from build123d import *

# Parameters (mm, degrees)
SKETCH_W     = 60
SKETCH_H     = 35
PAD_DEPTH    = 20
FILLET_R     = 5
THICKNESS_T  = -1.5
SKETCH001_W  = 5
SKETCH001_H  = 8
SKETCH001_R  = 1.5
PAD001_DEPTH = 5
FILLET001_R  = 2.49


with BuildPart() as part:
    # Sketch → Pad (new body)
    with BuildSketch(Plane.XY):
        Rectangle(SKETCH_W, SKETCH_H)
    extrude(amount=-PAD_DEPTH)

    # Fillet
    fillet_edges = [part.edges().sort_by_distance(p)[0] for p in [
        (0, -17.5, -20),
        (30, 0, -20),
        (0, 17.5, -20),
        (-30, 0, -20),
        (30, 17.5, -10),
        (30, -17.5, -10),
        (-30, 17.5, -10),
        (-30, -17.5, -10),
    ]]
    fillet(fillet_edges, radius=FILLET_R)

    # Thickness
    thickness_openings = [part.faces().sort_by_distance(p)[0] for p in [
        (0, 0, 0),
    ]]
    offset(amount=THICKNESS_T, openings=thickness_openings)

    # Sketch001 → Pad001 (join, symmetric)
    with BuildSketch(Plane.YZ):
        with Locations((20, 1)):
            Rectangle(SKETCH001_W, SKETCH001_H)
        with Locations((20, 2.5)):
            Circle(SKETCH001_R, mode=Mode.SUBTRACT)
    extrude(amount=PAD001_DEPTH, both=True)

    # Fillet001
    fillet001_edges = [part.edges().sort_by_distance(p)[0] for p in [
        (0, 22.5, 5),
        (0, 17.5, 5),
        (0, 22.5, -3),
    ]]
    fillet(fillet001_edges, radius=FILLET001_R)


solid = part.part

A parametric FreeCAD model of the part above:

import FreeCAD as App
import Part
import Sketcher

V = App.Vector
Q = App.Units.Quantity


def edges_at(feature, points):
    """Names of the edges that pass closest to the given points."""
    edges = feature.Shape.Edges
    near = lambda p: min(range(len(edges)), key=lambda i: edges[i].distToShape(Part.Vertex(*p))[0])
    return sorted({f"Edge{near(p) + 1}" for p in points})


def faces_at(feature, points):
    """Names of the faces that lie closest to the given points."""
    faces = feature.Shape.Faces
    near = lambda p: min(range(len(faces)), key=lambda i: faces[i].distToShape(Part.Vertex(*p))[0])
    return sorted({f"Face{near(p) + 1}" for p in points})


def add_polygon(sketch, points):
    """Adds a closed chain of lines whose ends are joined by coincident constraints."""
    first, n = sketch.GeometryCount, len(points)
    for a, b in zip(points, points[1:] + points[:1]):
        sketch.addGeometry(Part.LineSegment(App.Vector(*a, 0), App.Vector(*b, 0)), False)
    for i in range(n):
        sketch.addConstraint(Sketcher.Constraint("Coincident", first + i, 2, first + (i + 1) % n, 1))

doc = App.newDocument("Part")
params = doc.addObject("Spreadsheet::Sheet", "Params")
for row, (alias, value) in enumerate([
    ("sketch1_width", "60 mm"),
    ("sketch1_height", "35 mm"),
    ("pad1_length", "20 mm"),
    ("fillet_radius", "5 mm"),
    ("thickness_wall", "1.5 mm"),
    ("sketch2_diameter", "3 mm"),
    ("sketch2_width", "5 mm"),
    ("sketch2_height", "8 mm"),
    ("pad2_length", "10 mm"),
    ("fillet2_radius", "2.49 mm"),
], start=1):
    params.set(f"A{row}", alias)
    params.set(f"B{row}", "=" + value)
    params.setAlias(f"B{row}", alias)

body = doc.addObject("PartDesign::Body", "Body")

sketch1 = body.newObject("Sketcher::SketchObject", "Sketch")
sketch1.AttachmentSupport = (doc.getObject("XY_Plane"), [""])
sketch1.MapMode = "FlatFace"
add_polygon(sketch1, [(-30, 18), (-30, -18), (30, -18), (30, 18)])
sketch1.addConstraint([
    Sketcher.Constraint("Vertical", 0),
    Sketcher.Constraint("Horizontal", 1),
    Sketcher.Constraint("Vertical", 2),
    Sketcher.Constraint("Horizontal", 3),
    Sketcher.Constraint("Symmetric", 0, 2, 2, 2, -1, 1),
    Sketcher.Constraint("DistanceX", 1, 1, 1, 2, Q("60 mm")),
    Sketcher.Constraint("DistanceY", 0, 2, 0, 1, Q("35 mm")),
])
sketch1.setExpression("Constraints[9]", "Params.sketch1_width")
sketch1.setExpression("Constraints[10]", "Params.sketch1_height")
pad1 = body.newObject("PartDesign::Pad", "Pad")
pad1.Profile = sketch1
pad1.setExpression("Length", "Params.pad1_length")
pad1.Reversed = True
doc.recompute()

fillet = body.newObject("PartDesign::Fillet", "Fillet")
fillet.Base = (pad1, edges_at(pad1, [
    (0, -17.5, -20),
    (30, 0, -20),
    (0, 17.5, -20),
    (-30, 0, -20),
    (30, 17.5, -10),
    (30, -17.5, -10),
    (-30, 17.5, -10),
    (-30, -17.5, -10),
]))
fillet.setExpression("Radius", "Params.fillet_radius")
doc.recompute()

thickness = body.newObject("PartDesign::Thickness", "Thickness")
thickness.Base = (fillet, faces_at(fillet, [(0, 0, 0)]))
thickness.setExpression("Value", "Params.thickness_wall")
thickness.Reversed = True
thickness.Join = "Arc"

sketch2 = body.newObject("Sketcher::SketchObject", "Sketch001")
sketch2.AttachmentSupport = (doc.getObject("YZ_Plane"), [""])
sketch2.MapMode = "FlatFace"
add_polygon(sketch2, [(17.5, 5), (17.5, -3), (22.5, -3), (22.5, 5)])
sketch2.addGeometry(Part.Circle(V(20, 2.5, 0), V(0, 0, 1), 1.5), False)
sketch2.addConstraint([
    Sketcher.Constraint("Vertical", 0),
    Sketcher.Constraint("Horizontal", 1),
    Sketcher.Constraint("Vertical", 2),
    Sketcher.Constraint("Horizontal", 3),
    Sketcher.Constraint("Diameter", 4, Q("3 mm")),
    Sketcher.Constraint("DistanceX", 1, 1, 1, 2, Q("5 mm")),
    Sketcher.Constraint("DistanceY", 0, 2, 0, 1, Q("8 mm")),
    Sketcher.Constraint("DistanceX", -1, 1, 4, 3, Q("20 mm")),
    Sketcher.Constraint("DistanceY", 0, 2, -1, 1, Q("3 mm")),
    Sketcher.Constraint("DistanceY", -1, 1, 4, 3, Q("2.5 mm")),
    Sketcher.Constraint("DistanceX", -1, 1, 0, 2, Q("17.5 mm")),
])
sketch2.setExpression("Constraints[8]", "Params.sketch2_diameter")
sketch2.setExpression("Constraints[9]", "Params.sketch2_width")
sketch2.setExpression("Constraints[10]", "Params.sketch2_height")
pad2 = body.newObject("PartDesign::Pad", "Pad001")
pad2.Profile = sketch2
pad2.setExpression("Length", "Params.pad2_length")
pad2.Midplane = True
doc.recompute()

fillet2 = body.newObject("PartDesign::Fillet", "Fillet001")
fillet2.Base = (pad2, edges_at(pad2, [(0, 22.5, 5), (0, 17.5, 5), (0, 22.5, -3)]))
fillet2.setExpression("Radius", "Params.fillet2_radius")

doc.recompute()
